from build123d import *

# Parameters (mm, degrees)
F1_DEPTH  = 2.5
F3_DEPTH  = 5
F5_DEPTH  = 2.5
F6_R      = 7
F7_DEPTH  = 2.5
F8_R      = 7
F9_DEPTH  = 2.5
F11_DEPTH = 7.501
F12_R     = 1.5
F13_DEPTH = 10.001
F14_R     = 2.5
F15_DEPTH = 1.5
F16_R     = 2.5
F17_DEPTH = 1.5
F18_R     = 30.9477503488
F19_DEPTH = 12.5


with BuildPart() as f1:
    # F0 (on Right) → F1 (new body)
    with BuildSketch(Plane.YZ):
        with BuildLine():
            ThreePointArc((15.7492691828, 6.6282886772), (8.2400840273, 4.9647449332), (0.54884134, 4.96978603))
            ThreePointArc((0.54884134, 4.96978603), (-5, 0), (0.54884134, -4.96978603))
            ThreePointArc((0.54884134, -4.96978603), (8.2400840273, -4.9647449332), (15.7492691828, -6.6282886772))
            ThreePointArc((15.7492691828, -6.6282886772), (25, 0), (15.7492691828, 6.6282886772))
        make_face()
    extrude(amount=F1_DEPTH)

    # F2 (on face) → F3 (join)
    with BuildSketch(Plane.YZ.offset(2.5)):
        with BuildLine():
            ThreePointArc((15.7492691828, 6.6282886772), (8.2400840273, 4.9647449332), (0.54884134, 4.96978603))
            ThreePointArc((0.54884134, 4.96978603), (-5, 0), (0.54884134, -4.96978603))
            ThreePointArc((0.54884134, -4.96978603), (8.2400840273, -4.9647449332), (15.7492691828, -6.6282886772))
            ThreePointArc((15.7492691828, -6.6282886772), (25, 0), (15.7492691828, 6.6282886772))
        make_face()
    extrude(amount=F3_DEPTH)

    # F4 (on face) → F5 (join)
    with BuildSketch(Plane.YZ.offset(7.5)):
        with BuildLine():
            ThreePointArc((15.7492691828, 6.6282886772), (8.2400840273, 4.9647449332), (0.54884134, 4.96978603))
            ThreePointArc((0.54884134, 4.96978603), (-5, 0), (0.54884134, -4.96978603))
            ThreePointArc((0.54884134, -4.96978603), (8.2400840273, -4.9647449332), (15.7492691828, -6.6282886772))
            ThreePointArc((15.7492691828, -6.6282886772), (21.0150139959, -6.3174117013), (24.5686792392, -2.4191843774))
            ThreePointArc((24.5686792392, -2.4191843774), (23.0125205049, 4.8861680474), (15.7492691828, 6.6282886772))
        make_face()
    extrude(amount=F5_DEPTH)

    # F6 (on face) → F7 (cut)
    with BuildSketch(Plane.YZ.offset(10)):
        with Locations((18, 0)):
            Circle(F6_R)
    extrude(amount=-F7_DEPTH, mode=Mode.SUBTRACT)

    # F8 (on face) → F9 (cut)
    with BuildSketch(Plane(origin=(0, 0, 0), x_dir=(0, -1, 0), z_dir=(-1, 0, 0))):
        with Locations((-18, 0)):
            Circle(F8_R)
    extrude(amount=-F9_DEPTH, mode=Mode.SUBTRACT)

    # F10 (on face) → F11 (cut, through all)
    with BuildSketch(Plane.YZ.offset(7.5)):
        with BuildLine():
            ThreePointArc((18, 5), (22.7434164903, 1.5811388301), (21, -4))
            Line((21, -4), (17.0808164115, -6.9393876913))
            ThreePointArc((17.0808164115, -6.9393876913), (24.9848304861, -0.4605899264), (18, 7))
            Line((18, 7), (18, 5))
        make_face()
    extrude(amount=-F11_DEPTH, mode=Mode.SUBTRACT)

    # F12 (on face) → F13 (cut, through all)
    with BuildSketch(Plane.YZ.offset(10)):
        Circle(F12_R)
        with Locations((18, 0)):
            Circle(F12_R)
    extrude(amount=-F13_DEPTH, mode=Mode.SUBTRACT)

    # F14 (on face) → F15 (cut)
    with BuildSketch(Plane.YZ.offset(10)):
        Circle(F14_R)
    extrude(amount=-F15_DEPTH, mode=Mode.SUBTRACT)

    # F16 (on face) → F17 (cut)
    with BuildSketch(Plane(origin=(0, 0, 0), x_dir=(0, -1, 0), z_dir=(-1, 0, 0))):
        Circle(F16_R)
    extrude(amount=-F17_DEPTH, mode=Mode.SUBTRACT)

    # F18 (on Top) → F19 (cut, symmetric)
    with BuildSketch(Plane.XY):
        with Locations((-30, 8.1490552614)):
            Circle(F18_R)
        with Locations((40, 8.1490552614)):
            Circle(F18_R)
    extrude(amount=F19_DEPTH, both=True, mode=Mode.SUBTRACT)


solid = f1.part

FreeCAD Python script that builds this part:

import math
import FreeCAD as App
import Part
import Sketcher
Q = App.Units.Quantity

doc = App.newDocument("Part")
params = doc.addObject("Spreadsheet::Sheet", "Params")
for row, (alias, value) in enumerate([
    ("sketch1_radius", "5 mm"),
    ("sketch1_radius2", "7 mm"),
    ("pad1_length", "2.5 mm"),
    ("sketch2_radius", "5 mm"),
    ("sketch2_radius2", "7 mm"),
    ("pad2_length", "5 mm"),
    ("sketch3_radius", "5 mm"),
    ("sketch3_radius2", "7 mm"),
    ("pad3_length", "2.5 mm"),
    ("sketch4_diameter", "14 mm"),
    ("pocket1_length", "2.5 mm"),
    ("sketch5_diameter", "14 mm"),
    ("pocket2_length", "2.5 mm"),
    ("sketch6_radius", "5 mm"),
    ("sketch6_radius2", "7 mm"),
    ("sketch7_diameter", "3 mm"),
    ("sketch8_diameter", "5 mm"),
    ("pocket5_length", "1.5 mm"),
    ("sketch9_diameter", "5 mm"),
    ("pocket6_length", "1.5 mm"),
    ("pocket7_length", "25 mm"),
], start=1):
    params.set(f"A{row}", alias)
    params.set(f"B{row}", "=" + value)
    params.setAlias(f"B{row}", alias)

body = doc.addObject("PartDesign::Body", "Body")

# Sketch on YZ plane
sketch1 = body.newObject("Sketcher::SketchObject", "Sketch")
sketch1.AttachmentSupport = (doc.getObject("YZ_Plane"), [""])
sketch1.MapMode = "FlatFace"
sketch1.addGeometry(Part.ArcOfCircle(Part.Circle(App.Vector(4, 40, 0), App.Vector(0, 0, 1), 35), math.radians(-96), math.radians(-71)), False)
sketch1.addGeometry(Part.ArcOfCircle(Part.Circle(App.Vector(0, 0, 0), App.Vector(0, 0, 1), 5), math.radians(84), math.radians(276)), False)
sketch1.addGeometry(Part.ArcOfCircle(Part.Circle(App.Vector(4, -40, 0), App.Vector(0, 0, 1), 35), math.radians(71), math.radians(96)), False)
sketch1.addGeometry(Part.ArcOfCircle(Part.Circle(App.Vector(18, 0, 0), App.Vector(0, 0, 1), 7), math.radians(-109), math.radians(109)), False)
sketch1.addConstraint(Sketcher.Constraint("Tangent", 0, 1, 1, 1))
sketch1.addConstraint(Sketcher.Constraint("Tangent", 1, 2, 2, 2))
sketch1.addConstraint(Sketcher.Constraint("Tangent", 2, 1, 3, 1))
sketch1.addConstraint(Sketcher.Constraint("Tangent", 3, 2, 0, 2))
sketch1.addConstraint(Sketcher.Constraint("Coincident", 1, 3, -1, 1))
sketch1.addConstraint(Sketcher.Constraint("Equal", 0, 2))
sketch1.addConstraint(Sketcher.Constraint("PointOnObject", 3, 3, -1))
sketch1.addConstraint(Sketcher.Constraint("Radius", 1, Q("5 mm")))
sketch1.addConstraint(Sketcher.Constraint("Radius", 3, Q("7 mm")))
sketch1.addConstraint(Sketcher.Constraint("DistanceY", -1, 1, 0, 3, Q("40 mm")))
sketch1.addConstraint(Sketcher.Constraint("DistanceX", -1, 1, 3, 3, Q("18 mm")))
sketch1.setExpression("Constraints[7]", "Params.sketch1_radius")
sketch1.setExpression("Constraints[8]", "Params.sketch1_radius2")
pad1 = body.newObject("PartDesign::Pad", "Pad")
pad1.Profile = sketch1
pad1.setExpression("Length", "Params.pad1_length")

# Sketch on YZ plane
sketch2 = body.newObject("Sketcher::SketchObject", "Sketch001")
sketch2.AttachmentSupport = (doc.getObject("YZ_Plane"), [""])
sketch2.MapMode = "FlatFace"
sketch2.AttachmentOffset = App.Placement(App.Vector(0, 0, 2.5), App.Rotation())
sketch2.addGeometry(Part.ArcOfCircle(Part.Circle(App.Vector(4, 40, 0), App.Vector(0, 0, 1), 35), math.radians(-96), math.radians(-71)), False)
sketch2.addGeometry(Part.ArcOfCircle(Part.Circle(App.Vector(0, 0, 0), App.Vector(0, 0, 1), 5), math.radians(84), math.radians(276)), False)
sketch2.addGeometry(Part.ArcOfCircle(Part.Circle(App.Vector(4, -40, 0), App.Vector(0, 0, 1), 35), math.radians(71), math.radians(96)), False)
sketch2.addGeometry(Part.ArcOfCircle(Part.Circle(App.Vector(18, 0, 0), App.Vector(0, 0, 1), 7), math.radians(-109), math.radians(109)), False)
sketch2.addConstraint(Sketcher.Constraint("Tangent", 0, 1, 1, 1))
sketch2.addConstraint(Sketcher.Constraint("Tangent", 1, 2, 2, 2))
sketch2.addConstraint(Sketcher.Constraint("Tangent", 2, 1, 3, 1))
sketch2.addConstraint(Sketcher.Constraint("Tangent", 3, 2, 0, 2))
sketch2.addConstraint(Sketcher.Constraint("Coincident", 1, 3, -1, 1))
sketch2.addConstraint(Sketcher.Constraint("Equal", 0, 2))
sketch2.addConstraint(Sketcher.Constraint("PointOnObject", 3, 3, -1))
sketch2.addConstraint(Sketcher.Constraint("Radius", 1, Q("5 mm")))
sketch2.addConstraint(Sketcher.Constraint("Radius", 3, Q("7 mm")))
sketch2.addConstraint(Sketcher.Constraint("DistanceY", -1, 1, 0, 3, Q("40 mm")))
sketch2.addConstraint(Sketcher.Constraint("DistanceX", -1, 1, 3, 3, Q("18 mm")))
sketch2.setExpression("Constraints[7]", "Params.sketch2_radius")
sketch2.setExpression("Constraints[8]", "Params.sketch2_radius2")
pad2 = body.newObject("PartDesign::Pad", "Pad001")
pad2.Profile = sketch2
pad2.setExpression("Length", "Params.pad2_length")

# Sketch on YZ plane
sketch3 = body.newObject("Sketcher::SketchObject", "Sketch002")
sketch3.AttachmentSupport = (doc.getObject("YZ_Plane"), [""])
sketch3.MapMode = "FlatFace"
sketch3.AttachmentOffset = App.Placement(App.Vector(0, 0, 7.5), App.Rotation())
sketch3.addGeometry(Part.ArcOfCircle(Part.Circle(App.Vector(4, 40, 0), App.Vector(0, 0, 1), 35), math.radians(-96), math.radians(-71)), False)
sketch3.addGeometry(Part.ArcOfCircle(Part.Circle(App.Vector(0, 0, 0), App.Vector(0, 0, 1), 5), math.radians(84), math.radians(276)), False)
sketch3.addGeometry(Part.ArcOfCircle(Part.Circle(App.Vector(4, -40, 0), App.Vector(0, 0, 1), 35), math.radians(71), math.radians(96)), False)
sketch3.addGeometry(Part.ArcOfCircle(Part.Circle(App.Vector(18, 0, 0), App.Vector(0, 0, 1), 7), math.radians(-109), math.radians(-20)), False)
sketch3.addGeometry(Part.ArcOfCircle(Part.Circle(App.Vector(18, 0, 0), App.Vector(0, 0, 1), 7), math.radians(-20), math.radians(109)), False)
sketch3.addConstraint(Sketcher.Constraint("Tangent", 0, 1, 1, 1))
sketch3.addConstraint(Sketcher.Constraint("Tangent", 1, 2, 2, 2))
sketch3.addConstraint(Sketcher.Constraint("Tangent", 2, 1, 3, 1))
sketch3.addConstraint(Sketcher.Constraint("Tangent", 3, 2, 4, 1))
sketch3.addConstraint(Sketcher.Constraint("Tangent", 4, 2, 0, 2))
sketch3.addConstraint(Sketcher.Constraint("Coincident", 1, 3, -1, 1))
sketch3.addConstraint(Sketcher.Constraint("Equal", 0, 2))
sketch3.addConstraint(Sketcher.Constraint("Equal", 3, 4))
sketch3.addConstraint(Sketcher.Constraint("PointOnObject", 3, 3, -1))
sketch3.addConstraint(Sketcher.Constraint("Radius", 1, Q("5 mm")))
sketch3.addConstraint(Sketcher.Constraint("Radius", 3, Q("7 mm")))
sketch3.addConstraint(Sketcher.Constraint("DistanceY", -1, 1, 0, 3, Q("40 mm")))
sketch3.addConstraint(Sketcher.Constraint("DistanceX", -1, 1, 3, 3, Q("18 mm")))
sketch3.addConstraint(Sketcher.Constraint("DistanceY", 1, 2, 3, 2, Q("2.550602 mm")))
sketch3.setExpression("Constraints[9]", "Params.sketch3_radius")
sketch3.setExpression("Constraints[10]", "Params.sketch3_radius2")
pad3 = body.newObject("PartDesign::Pad", "Pad002")
pad3.Profile = sketch3
pad3.setExpression("Length", "Params.pad3_length")

# Sketch on YZ plane
sketch4 = body.newObject("Sketcher::SketchObject", "Sketch003")
sketch4.AttachmentSupport = (doc.getObject("YZ_Plane"), [""])
sketch4.MapMode = "FlatFace"
sketch4.AttachmentOffset = App.Placement(App.Vector(0, 0, 10), App.Rotation())
sketch4.addGeometry(Part.Circle(App.Vector(18, 0, 0), App.Vector(0, 0, 1), 7), False)
sketch4.addConstraint(Sketcher.Constraint("PointOnObject", 0, 3, -1))
sketch4.addConstraint(Sketcher.Constraint("Diameter", 0, Q("14 mm")))
sketch4.addConstraint(Sketcher.Constraint("DistanceX", -1, 1, 0, 3, Q("18 mm")))
sketch4.setExpression("Constraints[1]", "Params.sketch4_diameter")
pocket1 = body.newObject("PartDesign::Pocket", "Pocket")
pocket1.Profile = sketch4
pocket1.setExpression("Length", "Params.pocket1_length")

# Sketch on YZ plane
sketch5 = body.newObject("Sketcher::SketchObject", "Sketch004")
sketch5.AttachmentSupport = (doc.getObject("YZ_Plane"), [""])
sketch5.MapMode = "FlatFace"
sketch5.addGeometry(Part.Circle(App.Vector(18, 0, 0), App.Vector(0, 0, 1), 7), False)
sketch5.addConstraint(Sketcher.Constraint("PointOnObject", 0, 3, -1))
sketch5.addConstraint(Sketcher.Constraint("Diameter", 0, Q("14 mm")))
sketch5.addConstraint(Sketcher.Constraint("DistanceX", -1, 1, 0, 3, Q("18 mm")))
sketch5.setExpression("Constraints[1]", "Params.sketch5_diameter")
pocket2 = body.newObject("PartDesign::Pocket", "Pocket001")
pocket2.Profile = sketch5
pocket2.setExpression("Length", "Params.pocket2_length")
pocket2.Reversed = True

# Sketch on YZ plane
sketch6 = body.newObject("Sketcher::SketchObject", "Sketch005")
sketch6.AttachmentSupport = (doc.getObject("YZ_Plane"), [""])
sketch6.MapMode = "FlatFace"
sketch6.AttachmentOffset = App.Placement(App.Vector(0, 0, 7.5), App.Rotation())
sketch6.addGeometry(Part.ArcOfCircle(Part.Circle(App.Vector(18, 0, 0), App.Vector(0, 0, 1), 5), math.radians(-53), math.radians(90)), False)
sketch6.addGeometry(Part.LineSegment(App.Vector(21, -4, 0), App.Vector(17.1, -6.9, 0)), False)
sketch6.addGeometry(Part.ArcOfCircle(Part.Circle(App.Vector(18, 0, 0), App.Vector(0, 0, 1), 7), math.radians(-98), math.radians(90)), False)
sketch6.addGeometry(Part.LineSegment(App.Vector(18, 7, 0), App.Vector(18, 5, 0)), False)
sketch6.addConstraint(Sketcher.Constraint("Tangent", 0, 1, 1, 1))
sketch6.addConstraint(Sketcher.Constraint("Coincident", 1, 2, 2, 1))
sketch6.addConstraint(Sketcher.Constraint("Coincident", 2, 2, 3, 1))
sketch6.addConstraint(Sketcher.Constraint("Coincident", 3, 2, 0, 2))
sketch6.addConstraint(Sketcher.Constraint("Vertical", 3))
sketch6.addConstraint(Sketcher.Constraint("Coincident", 2, 3, 0, 3))
sketch6.addConstraint(Sketcher.Constraint("PointOnObject", 0, 3, -1))
sketch6.addConstraint(Sketcher.Constraint("Vertical", 0, 3, 2, 2))
sketch6.addConstraint(Sketcher.Constraint("Radius", 0, Q("5 mm")))
sketch6.addConstraint(Sketcher.Constraint("Radius", 2, Q("7 mm")))
sketch6.addConstraint(Sketcher.Constraint("DistanceX", -1, 1, 0, 3, Q("18 mm")))
sketch6.addConstraint(Sketcher.Constraint("DistanceX", -1, 1, 0, 1, Q("21 mm")))
sketch6.setExpression("Constraints[8]", "Params.sketch6_radius")
sketch6.setExpression("Constraints[9]", "Params.sketch6_radius2")
pocket3 = body.newObject("PartDesign::Pocket", "Pocket002")
pocket3.Profile = sketch6
pocket3.Type = "ThroughAll"

# Sketch on YZ plane
sketch7 = body.newObject("Sketcher::SketchObject", "Sketch006")
sketch7.AttachmentSupport = (doc.getObject("YZ_Plane"), [""])
sketch7.MapMode = "FlatFace"
sketch7.AttachmentOffset = App.Placement(App.Vector(0, 0, 10), App.Rotation())
sketch7.addGeometry(Part.Circle(App.Vector(0, 0, 0), App.Vector(0, 0, 1), 1.5), False)
sketch7.addGeometry(Part.Circle(App.Vector(18, 0, 0), App.Vector(0, 0, 1), 1.5), False)
sketch7.addConstraint(Sketcher.Constraint("Coincident", 0, 3, -1, 1))
sketch7.addConstraint(Sketcher.Constraint("Equal", 0, 1))
sketch7.addConstraint(Sketcher.Constraint("PointOnObject", 1, 3, -1))
sketch7.addConstraint(Sketcher.Constraint("Diameter", 0, Q("3 mm")))
sketch7.addConstraint(Sketcher.Constraint("DistanceX", -1, 1, 1, 3, Q("18 mm")))
sketch7.setExpression("Constraints[3]", "Params.sketch7_diameter")
pocket4 = body.newObject("PartDesign::Pocket", "Pocket003")
pocket4.Profile = sketch7
pocket4.Type = "ThroughAll"

# Sketch on YZ plane
sketch8 = body.newObject("Sketcher::SketchObject", "Sketch007")
sketch8.AttachmentSupport = (doc.getObject("YZ_Plane"), [""])
sketch8.MapMode = "FlatFace"
sketch8.AttachmentOffset = App.Placement(App.Vector(0, 0, 10), App.Rotation())
sketch8.addGeometry(Part.Circle(App.Vector(0, 0, 0), App.Vector(0, 0, 1), 2.5), False)
sketch8.addConstraint(Sketcher.Constraint("Coincident", 0, 3, -1, 1))
sketch8.addConstraint(Sketcher.Constraint("Diameter", 0, Q("5 mm")))
sketch8.setExpression("Constraints[1]", "Params.sketch8_diameter")
pocket5 = body.newObject("PartDesign::Pocket", "Pocket004")
pocket5.Profile = sketch8
pocket5.setExpression("Length", "Params.pocket5_length")

# Sketch on YZ plane
sketch9 = body.newObject("Sketcher::SketchObject", "Sketch008")
sketch9.AttachmentSupport = (doc.getObject("YZ_Plane"), [""])
sketch9.MapMode = "FlatFace"
sketch9.addGeometry(Part.Circle(App.Vector(0, 0, 0), App.Vector(0, 0, 1), 2.5), False)
sketch9.addConstraint(Sketcher.Constraint("Coincident", 0, 3, -1, 1))
sketch9.addConstraint(Sketcher.Constraint("Diameter", 0, Q("5 mm")))
sketch9.setExpression("Constraints[1]", "Params.sketch9_diameter")
pocket6 = body.newObject("PartDesign::Pocket", "Pocket005")
pocket6.Profile = sketch9
pocket6.setExpression("Length", "Params.pocket6_length")
pocket6.Reversed = True

# Sketch on XY plane
sketch10 = body.newObject("Sketcher::SketchObject", "Sketch009")
sketch10.AttachmentSupport = (doc.getObject("XY_Plane"), [""])
sketch10.MapMode = "FlatFace"
sketch10.addGeometry(Part.Circle(App.Vector(-30, 8, 0), App.Vector(0, 0, 1), 31), False)
sketch10.addGeometry(Part.Circle(App.Vector(40, 8, 0), App.Vector(0, 0, 1), 31), False)
sketch10.addConstraint(Sketcher.Constraint("Equal", 0, 1))
sketch10.addConstraint(Sketcher.Constraint("Horizontal", 0, 3, 1, 3))
sketch10.addConstraint(Sketcher.Constraint("DistanceX", 0, 3, -1, 1, Q("30 mm")))
sketch10.addConstraint(Sketcher.Constraint("DistanceX", -1, 1, 1, 3, Q("40 mm")))
sketch10.addConstraint(Sketcher.Constraint("Diameter", 0, Q("61.895501 mm")))
sketch10.addConstraint(Sketcher.Constraint("DistanceY", -1, 1, 0, 3, Q("8.149055 mm")))
pocket7 = body.newObject("PartDesign::Pocket", "Pocket006")
pocket7.Profile = sketch10
pocket7.setExpression("Length", "Params.pocket7_length")
pocket7.Midplane = True

doc.recompute()
